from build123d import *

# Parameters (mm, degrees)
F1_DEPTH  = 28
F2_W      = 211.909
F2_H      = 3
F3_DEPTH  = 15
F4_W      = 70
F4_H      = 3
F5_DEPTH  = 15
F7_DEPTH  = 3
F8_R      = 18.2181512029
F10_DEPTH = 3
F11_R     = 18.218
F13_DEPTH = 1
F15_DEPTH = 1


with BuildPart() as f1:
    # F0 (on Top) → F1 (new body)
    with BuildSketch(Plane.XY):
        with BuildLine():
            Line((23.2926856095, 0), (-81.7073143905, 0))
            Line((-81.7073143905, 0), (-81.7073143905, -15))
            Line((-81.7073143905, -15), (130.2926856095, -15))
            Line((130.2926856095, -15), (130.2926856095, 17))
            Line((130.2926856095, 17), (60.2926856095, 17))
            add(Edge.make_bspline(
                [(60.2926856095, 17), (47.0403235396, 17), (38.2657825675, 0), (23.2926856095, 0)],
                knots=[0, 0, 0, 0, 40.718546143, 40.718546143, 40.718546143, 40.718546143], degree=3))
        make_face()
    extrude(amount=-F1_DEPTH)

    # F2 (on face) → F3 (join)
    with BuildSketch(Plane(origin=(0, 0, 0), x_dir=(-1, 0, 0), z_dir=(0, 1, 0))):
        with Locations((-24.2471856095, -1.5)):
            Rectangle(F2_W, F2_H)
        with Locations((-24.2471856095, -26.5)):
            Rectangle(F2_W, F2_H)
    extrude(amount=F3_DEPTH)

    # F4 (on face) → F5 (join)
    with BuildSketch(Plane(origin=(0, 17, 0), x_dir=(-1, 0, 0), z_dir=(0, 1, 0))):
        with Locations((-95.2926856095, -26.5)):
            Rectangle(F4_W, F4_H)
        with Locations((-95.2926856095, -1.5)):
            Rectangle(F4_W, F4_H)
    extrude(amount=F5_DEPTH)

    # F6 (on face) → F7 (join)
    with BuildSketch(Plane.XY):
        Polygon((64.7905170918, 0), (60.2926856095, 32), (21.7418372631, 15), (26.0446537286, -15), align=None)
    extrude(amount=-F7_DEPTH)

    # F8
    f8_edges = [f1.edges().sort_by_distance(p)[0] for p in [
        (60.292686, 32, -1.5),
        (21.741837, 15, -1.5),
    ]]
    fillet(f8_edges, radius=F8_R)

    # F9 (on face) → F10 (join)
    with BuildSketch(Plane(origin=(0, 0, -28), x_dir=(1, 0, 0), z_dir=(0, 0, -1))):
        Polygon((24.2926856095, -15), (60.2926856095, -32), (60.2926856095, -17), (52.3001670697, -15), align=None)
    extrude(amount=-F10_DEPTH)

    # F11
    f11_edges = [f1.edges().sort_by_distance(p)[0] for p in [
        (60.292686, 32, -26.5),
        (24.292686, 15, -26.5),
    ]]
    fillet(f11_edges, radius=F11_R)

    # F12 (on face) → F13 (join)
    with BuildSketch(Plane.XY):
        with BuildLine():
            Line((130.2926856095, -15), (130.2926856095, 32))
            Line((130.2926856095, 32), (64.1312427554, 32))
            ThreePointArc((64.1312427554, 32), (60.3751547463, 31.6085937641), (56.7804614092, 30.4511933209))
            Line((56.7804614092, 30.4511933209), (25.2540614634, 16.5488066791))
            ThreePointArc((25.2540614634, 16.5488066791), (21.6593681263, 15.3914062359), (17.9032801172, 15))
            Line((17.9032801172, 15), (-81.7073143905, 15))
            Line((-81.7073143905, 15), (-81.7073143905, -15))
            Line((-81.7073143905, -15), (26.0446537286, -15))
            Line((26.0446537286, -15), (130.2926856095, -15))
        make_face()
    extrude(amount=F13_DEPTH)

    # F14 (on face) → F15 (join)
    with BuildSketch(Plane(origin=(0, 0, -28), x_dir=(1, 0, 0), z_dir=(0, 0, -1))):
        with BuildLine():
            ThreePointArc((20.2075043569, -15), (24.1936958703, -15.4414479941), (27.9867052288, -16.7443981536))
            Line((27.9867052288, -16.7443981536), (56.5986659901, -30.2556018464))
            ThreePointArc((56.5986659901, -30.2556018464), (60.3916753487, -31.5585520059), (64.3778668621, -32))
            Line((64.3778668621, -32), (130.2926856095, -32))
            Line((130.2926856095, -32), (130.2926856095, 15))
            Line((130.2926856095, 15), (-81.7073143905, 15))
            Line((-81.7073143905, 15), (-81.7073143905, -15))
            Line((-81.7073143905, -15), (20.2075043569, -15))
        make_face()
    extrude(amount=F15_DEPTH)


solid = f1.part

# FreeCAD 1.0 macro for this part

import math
import FreeCAD as App
import Part
import Sketcher

V = App.Vector
Q = App.Units.Quantity


def edges_at(feature, points):
    """Names of the edges that pass closest to the given points."""
    edges = feature.Shape.Edges
    near = lambda p: min(range(len(edges)), key=lambda i: edges[i].distToShape(Part.Vertex(*p))[0])
    return sorted({f"Edge{near(p) + 1}" for p in points})


def add_polygon(sketch, points):
    """Adds a closed chain of lines whose ends are joined by coincident constraints."""
    first, n = sketch.GeometryCount, len(points)
    for a, b in zip(points, points[1:] + points[:1]):
        sketch.addGeometry(Part.LineSegment(App.Vector(*a, 0), App.Vector(*b, 0)), False)
    for i in range(n):
        sketch.addConstraint(Sketcher.Constraint("Coincident", first + i, 2, first + (i + 1) % n, 1))

doc = App.newDocument("Part")
params = doc.addObject("Spreadsheet::Sheet", "Params")
for row, (alias, value) in enumerate([
    ("sketch1_width", "105 mm"),
    ("sketch1_width2", "212 mm"),
    ("sketch1_height", "15 mm"),
    ("pad1_length", "28 mm"),
    ("sketch2_height", "3 mm"),
    ("pad2_length", "15 mm"),
    ("sketch3_width", "70 mm"),
    ("sketch3_height", "3 mm"),
    ("pad3_length", "15 mm"),
    ("pad4_length", "3 mm"),
    ("fillet_radius", "18.218151 mm"),
    ("sketch5_height", "15 mm"),
    ("pad5_length", "3 mm"),
    ("fillet2_radius", "18.218 mm"),
    ("sketch6_width", "212 mm"),
    ("sketch6_height", "47 mm"),
    ("sketch6_height2", "30 mm"),
    ("pad6_length", "1 mm"),
    ("sketch7_width", "212 mm"),
    ("sketch7_height", "47 mm"),
    ("sketch7_height2", "30 mm"),
    ("pad7_length", "1 mm"),
], start=1):
    params.set(f"A{row}", alias)
    params.set(f"B{row}", "=" + value)
    params.setAlias(f"B{row}", alias)

body = doc.addObject("PartDesign::Body", "Body")

sketch1 = body.newObject("Sketcher::SketchObject", "Sketch")
sketch1.AttachmentSupport = (doc.getObject("XY_Plane"), [""])
sketch1.MapMode = "FlatFace"
sketch1.addGeometry([
    Part.LineSegment(V(23.292686, 0, 0), V(-81.707314, 0, 0)),
    Part.LineSegment(V(-81.707314, 0, 0), V(-81.707314, -15, 0)),
    Part.LineSegment(V(-81.707314, -15, 0), V(130.292686, -15, 0)),
    Part.LineSegment(V(130.292686, -15, 0), V(130.292686, 17, 0)),
    Part.LineSegment(V(130.292686, 17, 0), V(60.292686, 17, 0)),
    Part.BSplineCurve([V(60.292686, 17, 0), V(47.040324, 17, 0), V(38.265783, 0, 0), V(23.292686, 0, 0)], [4, 4], [0, 40.718546143], False, 3, [1, 1, 1, 1], False),
], False)
sketch1.addConstraint([
    Sketcher.Constraint("Block", 5),
    Sketcher.Constraint("Coincident", 0, 2, 1, 1),
    Sketcher.Constraint("Coincident", 1, 2, 2, 1),
    Sketcher.Constraint("Coincident", 2, 2, 3, 1),
    Sketcher.Constraint("Coincident", 3, 2, 4, 1),
    Sketcher.Constraint("Coincident", 4, 2, 5, 1),
    Sketcher.Constraint("Coincident", 5, 2, 0, 1),
    Sketcher.Constraint("Horizontal", 0),
    Sketcher.Constraint("Vertical", 1),
    Sketcher.Constraint("Horizontal", 2),
    Sketcher.Constraint("Vertical", 3),
    Sketcher.Constraint("Horizontal", 4),
    Sketcher.Constraint("DistanceX", 0, 2, 0, 1, Q("105 mm")),
    Sketcher.Constraint("DistanceX", 2, 1, 2, 2, Q("212 mm")),
    Sketcher.Constraint("DistanceY", 1, 2, 1, 1, Q("15 mm")),
])
sketch1.setExpression("Constraints[12]", "Params.sketch1_width")
sketch1.setExpression("Constraints[13]", "Params.sketch1_width2")
sketch1.setExpression("Constraints[14]", "Params.sketch1_height")
pad1 = body.newObject("PartDesign::Pad", "Pad")
pad1.Profile = sketch1
pad1.setExpression("Length", "Params.pad1_length")
pad1.Reversed = True

sketch2 = body.newObject("Sketcher::SketchObject", "Sketch001")
sketch2.AttachmentSupport = (doc.getObject("XZ_Plane"), [""])
sketch2.MapMode = "FlatFace"
add_polygon(sketch2, [(130.2, 0), (130.2, -3), (-81.7, -3), (-81.7, 0)])
add_polygon(sketch2, [(130.2, -25), (130.2, -28), (-81.7, -28), (-81.7, -25)])
sketch2.addConstraint([
    Sketcher.Constraint("Vertical", 0),
    Sketcher.Constraint("Horizontal", 1),
    Sketcher.Constraint("Vertical", 2),
    Sketcher.Constraint("Horizontal", 3),
    Sketcher.Constraint("Vertical", 4),
    Sketcher.Constraint("Horizontal", 5),
    Sketcher.Constraint("Vertical", 6),
    Sketcher.Constraint("Horizontal", 7),
    Sketcher.Constraint("PointOnObject", 2, 2, -1),
    Sketcher.Constraint("Vertical", 3, 2, 4, 2),
    Sketcher.Constraint("Vertical", 2, 2, 5, 2),
    Sketcher.Constraint("Equal", 2, 4),
    Sketcher.Constraint("DistanceY", 0, 2, 0, 1, Q("3 mm")),
    Sketcher.Constraint("DistanceY", 4, 2, -1, 1, Q("28 mm")),
    Sketcher.Constraint("DistanceX", 1, 2, 1, 1, Q("211.909 mm")),
    Sketcher.Constraint("DistanceX", -1, 1, 0, 2, Q("130.201686 mm")),
])
sketch2.setExpression("Constraints[20]", "Params.sketch2_height")
pad2 = body.newObject("PartDesign::Pad", "Pad001")
pad2.Profile = sketch2
pad2.setExpression("Length", "Params.pad2_length")
pad2.Reversed = True

sketch3 = body.newObject("Sketcher::SketchObject", "Sketch002")
sketch3.AttachmentSupport = (doc.getObject("XZ_Plane"), [""])
sketch3.MapMode = "FlatFace"
sketch3.AttachmentOffset = App.Placement(V(0, 0, -17), App.Rotation())
add_polygon(sketch3, [(130.3, -25), (130.3, -28), (60.3, -28), (60.3, -25)])
add_polygon(sketch3, [(130.3, 0), (130.3, -3), (60.3, -3), (60.3, 0)])
sketch3.addConstraint([
    Sketcher.Constraint("Vertical", 0),
    Sketcher.Constraint("Horizontal", 1),
    Sketcher.Constraint("Vertical", 2),
    Sketcher.Constraint("Horizontal", 3),
    Sketcher.Constraint("Vertical", 4),
    Sketcher.Constraint("Horizontal", 5),
    Sketcher.Constraint("Vertical", 6),
    Sketcher.Constraint("Horizontal", 7),
    Sketcher.Constraint("PointOnObject", 6, 2, -1),
    Sketcher.Constraint("Vertical", 3, 2, 4, 2),
    Sketcher.Constraint("Vertical", 2, 2, 5, 2),
    Sketcher.Constraint("Equal", 2, 4),
    Sketcher.Constraint("DistanceX", 1, 2, 1, 1, Q("70 mm")),
    Sketcher.Constraint("DistanceY", 0, 2, 0, 1, Q("3 mm")),
    Sketcher.Constraint("DistanceY", 0, 2, -1, 1, Q("28 mm")),
    Sketcher.Constraint("DistanceX", -1, 1, 0, 2, Q("130.292686 mm")),
])
sketch3.setExpression("Constraints[20]", "Params.sketch3_width")
sketch3.setExpression("Constraints[21]", "Params.sketch3_height")
pad3 = body.newObject("PartDesign::Pad", "Pad002")
pad3.Profile = sketch3
pad3.setExpression("Length", "Params.pad3_length")
pad3.Reversed = True

sketch4 = body.newObject("Sketcher::SketchObject", "Sketch003")
sketch4.AttachmentSupport = (doc.getObject("XY_Plane"), [""])
sketch4.MapMode = "FlatFace"
add_polygon(sketch4, [(65, 0), (60, 32), (22, 15), (26, -15)])
sketch4.addConstraint([
    Sketcher.Constraint("PointOnObject", 3, 2, -1),
    Sketcher.Constraint("DistanceY", -1, 1, 0, 2, Q("32 mm")),
    Sketcher.Constraint("DistanceY", -1, 1, 1, 2, Q("15 mm")),
    Sketcher.Constraint("DistanceY", 2, 2, -1, 1, Q("15 mm")),
    Sketcher.Constraint("Distance", 2, Q("30.307 mm")),
    Sketcher.Constraint("Distance", 1, Q("42.132742 mm")),
    Sketcher.Constraint("DistanceX", 0, 2, 3, 2, Q("4.497831 mm")),
    Sketcher.Constraint("DistanceX", -1, 1, 0, 2, Q("60.292686 mm")),
])
pad4 = body.newObject("PartDesign::Pad", "Pad003")
pad4.Profile = sketch4
pad4.setExpression("Length", "Params.pad4_length")
pad4.Reversed = True
doc.recompute()

fillet = body.newObject("PartDesign::Fillet", "Fillet")
fillet.Base = (pad4, edges_at(pad4, [(60.293, 32, -1.5), (21.742, 15, -1.5)]))
fillet.setExpression("Radius", "Params.fillet_radius")

sketch5 = body.newObject("Sketcher::SketchObject", "Sketch004")
sketch5.AttachmentSupport = (doc.getObject("XY_Plane"), [""])
sketch5.MapMode = "FlatFace"
sketch5.AttachmentOffset = App.Placement(V(0, 0, -28), App.Rotation())
add_polygon(sketch5, [(24, 15), (60, 32), (60, 17), (52, 15)])
sketch5.addConstraint([
    Sketcher.Constraint("Vertical", 1),
    Sketcher.Constraint("Horizontal", 3),
    Sketcher.Constraint("DistanceY", 1, 2, 1, 1, Q("15 mm")),
    Sketcher.Constraint("DistanceY", -1, 1, 0, 2, Q("32 mm")),
    Sketcher.Constraint("DistanceY", -1, 1, 2, 2, Q("15 mm")),
    Sketcher.Constraint("DistanceX", 3, 2, 1, 2, Q("36 mm")),
    Sketcher.Constraint("DistanceX", 3, 2, 3, 1, Q("28.007481 mm")),
    Sketcher.Constraint("DistanceX", -1, 1, 0, 2, Q("60.292686 mm")),
])
sketch5.setExpression("Constraints[6]", "Params.sketch5_height")
pad5 = body.newObject("PartDesign::Pad", "Pad004")
pad5.Profile = sketch5
pad5.setExpression("Length", "Params.pad5_length")
doc.recompute()

fillet2 = body.newObject("PartDesign::Fillet", "Fillet001")
fillet2.Base = (pad5, edges_at(pad5, [(60.293, 32, -26.5), (24.293, 15, -26.5)]))
fillet2.setExpression("Radius", "Params.fillet2_radius")

sketch6 = body.newObject("Sketcher::SketchObject", "Sketch005")
sketch6.AttachmentSupport = (doc.getObject("XY_Plane"), [""])
sketch6.MapMode = "FlatFace"
sketch6.addGeometry([
    Part.LineSegment(V(130, -15, 0), V(130, 32, 0)),
    Part.LineSegment(V(130, 32, 0), V(64, 32, 0)),
    Part.ArcOfCircle(Part.Circle(V(64, 14, 0), V(0, 0, 1), 18), math.radians(90), math.radians(114)),
    Part.LineSegment(V(57, 30, 0), V(25, 17, 0)),
    Part.ArcOfCircle(Part.Circle(V(18, 33, 0), V(0, 0, 1), 18), math.radians(-90), math.radians(-66)),
    Part.LineSegment(V(18, 15, 0), V(-82, 15, 0)),
    Part.LineSegment(V(-82, 15, 0), V(-82, -15, 0)),
    Part.LineSegment(V(-82, -15, 0), V(130, -15, 0)),
], False)
sketch6.addConstraint([
    Sketcher.Constraint("Coincident", 0, 2, 1, 1),
    Sketcher.Constraint("Tangent", 1, 2, 2, 1),
    Sketcher.Constraint("Tangent", 2, 2, 3, 1),
    Sketcher.Constraint("Tangent", 3, 2, 4, 2),
    Sketcher.Constraint("Tangent", 4, 1, 5, 1),
    Sketcher.Constraint("Coincident", 5, 2, 6, 1),
    Sketcher.Constraint("Coincident", 6, 2, 7, 1),
    Sketcher.Constraint("Coincident", 7, 2, 0, 1),
    Sketcher.Constraint("Vertical", 0),
    Sketcher.Constraint("Horizontal", 1),
    Sketcher.Constraint("Horizontal", 5),
    Sketcher.Constraint("Vertical", 6),
    Sketcher.Constraint("Horizontal", 7),
    Sketcher.Constraint("Equal", 2, 4),
    Sketcher.Constraint("DistanceX", 7, 1, 7, 2, Q("212 mm")),
    Sketcher.Constraint("DistanceY", 0, 1, 0, 2, Q("47 mm")),
    Sketcher.Constraint("DistanceY", 6, 2, 6, 1, Q("30 mm")),
    Sketcher.Constraint("DistanceY", -1, 1, 0, 2, Q("32 mm")),
    Sketcher.Constraint("Radius", 2, Q("18.218151 mm")),
    Sketcher.Constraint("DistanceX", 3, 2, 2, 2, Q("31.5264 mm")),
    Sketcher.Constraint("DistanceX", 1, 2, 1, 1, Q("66.161443 mm")),
    Sketcher.Constraint("DistanceX", -1, 1, 4, 3, Q("17.90328 mm")),
])
sketch6.setExpression("Constraints[14]", "Params.sketch6_width")
sketch6.setExpression("Constraints[15]", "Params.sketch6_height")
sketch6.setExpression("Constraints[16]", "Params.sketch6_height2")
pad6 = body.newObject("PartDesign::Pad", "Pad005")
pad6.Profile = sketch6
pad6.setExpression("Length", "Params.pad6_length")

sketch7 = body.newObject("Sketcher::SketchObject", "Sketch006")
sketch7.AttachmentSupport = (doc.getObject("XY_Plane"), [""])
sketch7.MapMode = "FlatFace"
sketch7.AttachmentOffset = App.Placement(V(0, 0, -28), App.Rotation())
sketch7.addGeometry([
    Part.ArcOfCircle(Part.Circle(V(20, 33, 0), V(0, 0, 1), 18), math.radians(-90), math.radians(-65)),
    Part.LineSegment(V(28, 17, 0), V(57, 30, 0)),
    Part.ArcOfCircle(Part.Circle(V(64, 14, 0), V(0, 0, 1), 18), math.radians(90), math.radians(115)),
    Part.LineSegment(V(64, 32, 0), V(130, 32, 0)),
    Part.LineSegment(V(130, 32, 0), V(130, -15, 0)),
    Part.LineSegment(V(130, -15, 0), V(-82, -15, 0)),
    Part.LineSegment(V(-82, -15, 0), V(-82, 15, 0)),
    Part.LineSegment(V(-82, 15, 0), V(20, 15, 0)),
], False)
sketch7.addConstraint([
    Sketcher.Constraint("Tangent", 0, 2, 1, 1),
    Sketcher.Constraint("Tangent", 1, 2, 2, 2),
    Sketcher.Constraint("Tangent", 2, 1, 3, 1),
    Sketcher.Constraint("Coincident", 3, 2, 4, 1),
    Sketcher.Constraint("Coincident", 4, 2, 5, 1),
    Sketcher.Constraint("Coincident", 5, 2, 6, 1),
    Sketcher.Constraint("Coincident", 6, 2, 7, 1),
    Sketcher.Constraint("Tangent", 7, 2, 0, 1),
    Sketcher.Constraint("Horizontal", 3),
    Sketcher.Constraint("Vertical", 4),
    Sketcher.Constraint("Horizontal", 5),
    Sketcher.Constraint("Vertical", 6),
    Sketcher.Constraint("Horizontal", 7),
    Sketcher.Constraint("Equal", 0, 2),
    Sketcher.Constraint("DistanceX", 5, 2, 5, 1, Q("212 mm")),
    Sketcher.Constraint("DistanceY", 4, 2, 4, 1, Q("47 mm")),
    Sketcher.Constraint("DistanceY", 6, 1, 6, 2, Q("30 mm")),
    Sketcher.Constraint("DistanceY", -1, 1, 2, 1, Q("32 mm")),
    Sketcher.Constraint("Radius", 0, Q("18.218 mm")),
    Sketcher.Constraint("DistanceX", 3, 1, 3, 2, Q("65.914819 mm")),
    Sketcher.Constraint("DistanceX", 7, 1, 7, 2, Q("101.914819 mm")),
    Sketcher.Constraint("DistanceX", -1, 1, 0, 3, Q("20.207504 mm")),
])
sketch7.setExpression("Constraints[14]", "Params.sketch7_width")
sketch7.setExpression("Constraints[15]", "Params.sketch7_height")
sketch7.setExpression("Constraints[16]", "Params.sketch7_height2")
pad7 = body.newObject("PartDesign::Pad", "Pad006")
pad7.Profile = sketch7
pad7.setExpression("Length", "Params.pad7_length")
pad7.Reversed = True

doc.recompute()
